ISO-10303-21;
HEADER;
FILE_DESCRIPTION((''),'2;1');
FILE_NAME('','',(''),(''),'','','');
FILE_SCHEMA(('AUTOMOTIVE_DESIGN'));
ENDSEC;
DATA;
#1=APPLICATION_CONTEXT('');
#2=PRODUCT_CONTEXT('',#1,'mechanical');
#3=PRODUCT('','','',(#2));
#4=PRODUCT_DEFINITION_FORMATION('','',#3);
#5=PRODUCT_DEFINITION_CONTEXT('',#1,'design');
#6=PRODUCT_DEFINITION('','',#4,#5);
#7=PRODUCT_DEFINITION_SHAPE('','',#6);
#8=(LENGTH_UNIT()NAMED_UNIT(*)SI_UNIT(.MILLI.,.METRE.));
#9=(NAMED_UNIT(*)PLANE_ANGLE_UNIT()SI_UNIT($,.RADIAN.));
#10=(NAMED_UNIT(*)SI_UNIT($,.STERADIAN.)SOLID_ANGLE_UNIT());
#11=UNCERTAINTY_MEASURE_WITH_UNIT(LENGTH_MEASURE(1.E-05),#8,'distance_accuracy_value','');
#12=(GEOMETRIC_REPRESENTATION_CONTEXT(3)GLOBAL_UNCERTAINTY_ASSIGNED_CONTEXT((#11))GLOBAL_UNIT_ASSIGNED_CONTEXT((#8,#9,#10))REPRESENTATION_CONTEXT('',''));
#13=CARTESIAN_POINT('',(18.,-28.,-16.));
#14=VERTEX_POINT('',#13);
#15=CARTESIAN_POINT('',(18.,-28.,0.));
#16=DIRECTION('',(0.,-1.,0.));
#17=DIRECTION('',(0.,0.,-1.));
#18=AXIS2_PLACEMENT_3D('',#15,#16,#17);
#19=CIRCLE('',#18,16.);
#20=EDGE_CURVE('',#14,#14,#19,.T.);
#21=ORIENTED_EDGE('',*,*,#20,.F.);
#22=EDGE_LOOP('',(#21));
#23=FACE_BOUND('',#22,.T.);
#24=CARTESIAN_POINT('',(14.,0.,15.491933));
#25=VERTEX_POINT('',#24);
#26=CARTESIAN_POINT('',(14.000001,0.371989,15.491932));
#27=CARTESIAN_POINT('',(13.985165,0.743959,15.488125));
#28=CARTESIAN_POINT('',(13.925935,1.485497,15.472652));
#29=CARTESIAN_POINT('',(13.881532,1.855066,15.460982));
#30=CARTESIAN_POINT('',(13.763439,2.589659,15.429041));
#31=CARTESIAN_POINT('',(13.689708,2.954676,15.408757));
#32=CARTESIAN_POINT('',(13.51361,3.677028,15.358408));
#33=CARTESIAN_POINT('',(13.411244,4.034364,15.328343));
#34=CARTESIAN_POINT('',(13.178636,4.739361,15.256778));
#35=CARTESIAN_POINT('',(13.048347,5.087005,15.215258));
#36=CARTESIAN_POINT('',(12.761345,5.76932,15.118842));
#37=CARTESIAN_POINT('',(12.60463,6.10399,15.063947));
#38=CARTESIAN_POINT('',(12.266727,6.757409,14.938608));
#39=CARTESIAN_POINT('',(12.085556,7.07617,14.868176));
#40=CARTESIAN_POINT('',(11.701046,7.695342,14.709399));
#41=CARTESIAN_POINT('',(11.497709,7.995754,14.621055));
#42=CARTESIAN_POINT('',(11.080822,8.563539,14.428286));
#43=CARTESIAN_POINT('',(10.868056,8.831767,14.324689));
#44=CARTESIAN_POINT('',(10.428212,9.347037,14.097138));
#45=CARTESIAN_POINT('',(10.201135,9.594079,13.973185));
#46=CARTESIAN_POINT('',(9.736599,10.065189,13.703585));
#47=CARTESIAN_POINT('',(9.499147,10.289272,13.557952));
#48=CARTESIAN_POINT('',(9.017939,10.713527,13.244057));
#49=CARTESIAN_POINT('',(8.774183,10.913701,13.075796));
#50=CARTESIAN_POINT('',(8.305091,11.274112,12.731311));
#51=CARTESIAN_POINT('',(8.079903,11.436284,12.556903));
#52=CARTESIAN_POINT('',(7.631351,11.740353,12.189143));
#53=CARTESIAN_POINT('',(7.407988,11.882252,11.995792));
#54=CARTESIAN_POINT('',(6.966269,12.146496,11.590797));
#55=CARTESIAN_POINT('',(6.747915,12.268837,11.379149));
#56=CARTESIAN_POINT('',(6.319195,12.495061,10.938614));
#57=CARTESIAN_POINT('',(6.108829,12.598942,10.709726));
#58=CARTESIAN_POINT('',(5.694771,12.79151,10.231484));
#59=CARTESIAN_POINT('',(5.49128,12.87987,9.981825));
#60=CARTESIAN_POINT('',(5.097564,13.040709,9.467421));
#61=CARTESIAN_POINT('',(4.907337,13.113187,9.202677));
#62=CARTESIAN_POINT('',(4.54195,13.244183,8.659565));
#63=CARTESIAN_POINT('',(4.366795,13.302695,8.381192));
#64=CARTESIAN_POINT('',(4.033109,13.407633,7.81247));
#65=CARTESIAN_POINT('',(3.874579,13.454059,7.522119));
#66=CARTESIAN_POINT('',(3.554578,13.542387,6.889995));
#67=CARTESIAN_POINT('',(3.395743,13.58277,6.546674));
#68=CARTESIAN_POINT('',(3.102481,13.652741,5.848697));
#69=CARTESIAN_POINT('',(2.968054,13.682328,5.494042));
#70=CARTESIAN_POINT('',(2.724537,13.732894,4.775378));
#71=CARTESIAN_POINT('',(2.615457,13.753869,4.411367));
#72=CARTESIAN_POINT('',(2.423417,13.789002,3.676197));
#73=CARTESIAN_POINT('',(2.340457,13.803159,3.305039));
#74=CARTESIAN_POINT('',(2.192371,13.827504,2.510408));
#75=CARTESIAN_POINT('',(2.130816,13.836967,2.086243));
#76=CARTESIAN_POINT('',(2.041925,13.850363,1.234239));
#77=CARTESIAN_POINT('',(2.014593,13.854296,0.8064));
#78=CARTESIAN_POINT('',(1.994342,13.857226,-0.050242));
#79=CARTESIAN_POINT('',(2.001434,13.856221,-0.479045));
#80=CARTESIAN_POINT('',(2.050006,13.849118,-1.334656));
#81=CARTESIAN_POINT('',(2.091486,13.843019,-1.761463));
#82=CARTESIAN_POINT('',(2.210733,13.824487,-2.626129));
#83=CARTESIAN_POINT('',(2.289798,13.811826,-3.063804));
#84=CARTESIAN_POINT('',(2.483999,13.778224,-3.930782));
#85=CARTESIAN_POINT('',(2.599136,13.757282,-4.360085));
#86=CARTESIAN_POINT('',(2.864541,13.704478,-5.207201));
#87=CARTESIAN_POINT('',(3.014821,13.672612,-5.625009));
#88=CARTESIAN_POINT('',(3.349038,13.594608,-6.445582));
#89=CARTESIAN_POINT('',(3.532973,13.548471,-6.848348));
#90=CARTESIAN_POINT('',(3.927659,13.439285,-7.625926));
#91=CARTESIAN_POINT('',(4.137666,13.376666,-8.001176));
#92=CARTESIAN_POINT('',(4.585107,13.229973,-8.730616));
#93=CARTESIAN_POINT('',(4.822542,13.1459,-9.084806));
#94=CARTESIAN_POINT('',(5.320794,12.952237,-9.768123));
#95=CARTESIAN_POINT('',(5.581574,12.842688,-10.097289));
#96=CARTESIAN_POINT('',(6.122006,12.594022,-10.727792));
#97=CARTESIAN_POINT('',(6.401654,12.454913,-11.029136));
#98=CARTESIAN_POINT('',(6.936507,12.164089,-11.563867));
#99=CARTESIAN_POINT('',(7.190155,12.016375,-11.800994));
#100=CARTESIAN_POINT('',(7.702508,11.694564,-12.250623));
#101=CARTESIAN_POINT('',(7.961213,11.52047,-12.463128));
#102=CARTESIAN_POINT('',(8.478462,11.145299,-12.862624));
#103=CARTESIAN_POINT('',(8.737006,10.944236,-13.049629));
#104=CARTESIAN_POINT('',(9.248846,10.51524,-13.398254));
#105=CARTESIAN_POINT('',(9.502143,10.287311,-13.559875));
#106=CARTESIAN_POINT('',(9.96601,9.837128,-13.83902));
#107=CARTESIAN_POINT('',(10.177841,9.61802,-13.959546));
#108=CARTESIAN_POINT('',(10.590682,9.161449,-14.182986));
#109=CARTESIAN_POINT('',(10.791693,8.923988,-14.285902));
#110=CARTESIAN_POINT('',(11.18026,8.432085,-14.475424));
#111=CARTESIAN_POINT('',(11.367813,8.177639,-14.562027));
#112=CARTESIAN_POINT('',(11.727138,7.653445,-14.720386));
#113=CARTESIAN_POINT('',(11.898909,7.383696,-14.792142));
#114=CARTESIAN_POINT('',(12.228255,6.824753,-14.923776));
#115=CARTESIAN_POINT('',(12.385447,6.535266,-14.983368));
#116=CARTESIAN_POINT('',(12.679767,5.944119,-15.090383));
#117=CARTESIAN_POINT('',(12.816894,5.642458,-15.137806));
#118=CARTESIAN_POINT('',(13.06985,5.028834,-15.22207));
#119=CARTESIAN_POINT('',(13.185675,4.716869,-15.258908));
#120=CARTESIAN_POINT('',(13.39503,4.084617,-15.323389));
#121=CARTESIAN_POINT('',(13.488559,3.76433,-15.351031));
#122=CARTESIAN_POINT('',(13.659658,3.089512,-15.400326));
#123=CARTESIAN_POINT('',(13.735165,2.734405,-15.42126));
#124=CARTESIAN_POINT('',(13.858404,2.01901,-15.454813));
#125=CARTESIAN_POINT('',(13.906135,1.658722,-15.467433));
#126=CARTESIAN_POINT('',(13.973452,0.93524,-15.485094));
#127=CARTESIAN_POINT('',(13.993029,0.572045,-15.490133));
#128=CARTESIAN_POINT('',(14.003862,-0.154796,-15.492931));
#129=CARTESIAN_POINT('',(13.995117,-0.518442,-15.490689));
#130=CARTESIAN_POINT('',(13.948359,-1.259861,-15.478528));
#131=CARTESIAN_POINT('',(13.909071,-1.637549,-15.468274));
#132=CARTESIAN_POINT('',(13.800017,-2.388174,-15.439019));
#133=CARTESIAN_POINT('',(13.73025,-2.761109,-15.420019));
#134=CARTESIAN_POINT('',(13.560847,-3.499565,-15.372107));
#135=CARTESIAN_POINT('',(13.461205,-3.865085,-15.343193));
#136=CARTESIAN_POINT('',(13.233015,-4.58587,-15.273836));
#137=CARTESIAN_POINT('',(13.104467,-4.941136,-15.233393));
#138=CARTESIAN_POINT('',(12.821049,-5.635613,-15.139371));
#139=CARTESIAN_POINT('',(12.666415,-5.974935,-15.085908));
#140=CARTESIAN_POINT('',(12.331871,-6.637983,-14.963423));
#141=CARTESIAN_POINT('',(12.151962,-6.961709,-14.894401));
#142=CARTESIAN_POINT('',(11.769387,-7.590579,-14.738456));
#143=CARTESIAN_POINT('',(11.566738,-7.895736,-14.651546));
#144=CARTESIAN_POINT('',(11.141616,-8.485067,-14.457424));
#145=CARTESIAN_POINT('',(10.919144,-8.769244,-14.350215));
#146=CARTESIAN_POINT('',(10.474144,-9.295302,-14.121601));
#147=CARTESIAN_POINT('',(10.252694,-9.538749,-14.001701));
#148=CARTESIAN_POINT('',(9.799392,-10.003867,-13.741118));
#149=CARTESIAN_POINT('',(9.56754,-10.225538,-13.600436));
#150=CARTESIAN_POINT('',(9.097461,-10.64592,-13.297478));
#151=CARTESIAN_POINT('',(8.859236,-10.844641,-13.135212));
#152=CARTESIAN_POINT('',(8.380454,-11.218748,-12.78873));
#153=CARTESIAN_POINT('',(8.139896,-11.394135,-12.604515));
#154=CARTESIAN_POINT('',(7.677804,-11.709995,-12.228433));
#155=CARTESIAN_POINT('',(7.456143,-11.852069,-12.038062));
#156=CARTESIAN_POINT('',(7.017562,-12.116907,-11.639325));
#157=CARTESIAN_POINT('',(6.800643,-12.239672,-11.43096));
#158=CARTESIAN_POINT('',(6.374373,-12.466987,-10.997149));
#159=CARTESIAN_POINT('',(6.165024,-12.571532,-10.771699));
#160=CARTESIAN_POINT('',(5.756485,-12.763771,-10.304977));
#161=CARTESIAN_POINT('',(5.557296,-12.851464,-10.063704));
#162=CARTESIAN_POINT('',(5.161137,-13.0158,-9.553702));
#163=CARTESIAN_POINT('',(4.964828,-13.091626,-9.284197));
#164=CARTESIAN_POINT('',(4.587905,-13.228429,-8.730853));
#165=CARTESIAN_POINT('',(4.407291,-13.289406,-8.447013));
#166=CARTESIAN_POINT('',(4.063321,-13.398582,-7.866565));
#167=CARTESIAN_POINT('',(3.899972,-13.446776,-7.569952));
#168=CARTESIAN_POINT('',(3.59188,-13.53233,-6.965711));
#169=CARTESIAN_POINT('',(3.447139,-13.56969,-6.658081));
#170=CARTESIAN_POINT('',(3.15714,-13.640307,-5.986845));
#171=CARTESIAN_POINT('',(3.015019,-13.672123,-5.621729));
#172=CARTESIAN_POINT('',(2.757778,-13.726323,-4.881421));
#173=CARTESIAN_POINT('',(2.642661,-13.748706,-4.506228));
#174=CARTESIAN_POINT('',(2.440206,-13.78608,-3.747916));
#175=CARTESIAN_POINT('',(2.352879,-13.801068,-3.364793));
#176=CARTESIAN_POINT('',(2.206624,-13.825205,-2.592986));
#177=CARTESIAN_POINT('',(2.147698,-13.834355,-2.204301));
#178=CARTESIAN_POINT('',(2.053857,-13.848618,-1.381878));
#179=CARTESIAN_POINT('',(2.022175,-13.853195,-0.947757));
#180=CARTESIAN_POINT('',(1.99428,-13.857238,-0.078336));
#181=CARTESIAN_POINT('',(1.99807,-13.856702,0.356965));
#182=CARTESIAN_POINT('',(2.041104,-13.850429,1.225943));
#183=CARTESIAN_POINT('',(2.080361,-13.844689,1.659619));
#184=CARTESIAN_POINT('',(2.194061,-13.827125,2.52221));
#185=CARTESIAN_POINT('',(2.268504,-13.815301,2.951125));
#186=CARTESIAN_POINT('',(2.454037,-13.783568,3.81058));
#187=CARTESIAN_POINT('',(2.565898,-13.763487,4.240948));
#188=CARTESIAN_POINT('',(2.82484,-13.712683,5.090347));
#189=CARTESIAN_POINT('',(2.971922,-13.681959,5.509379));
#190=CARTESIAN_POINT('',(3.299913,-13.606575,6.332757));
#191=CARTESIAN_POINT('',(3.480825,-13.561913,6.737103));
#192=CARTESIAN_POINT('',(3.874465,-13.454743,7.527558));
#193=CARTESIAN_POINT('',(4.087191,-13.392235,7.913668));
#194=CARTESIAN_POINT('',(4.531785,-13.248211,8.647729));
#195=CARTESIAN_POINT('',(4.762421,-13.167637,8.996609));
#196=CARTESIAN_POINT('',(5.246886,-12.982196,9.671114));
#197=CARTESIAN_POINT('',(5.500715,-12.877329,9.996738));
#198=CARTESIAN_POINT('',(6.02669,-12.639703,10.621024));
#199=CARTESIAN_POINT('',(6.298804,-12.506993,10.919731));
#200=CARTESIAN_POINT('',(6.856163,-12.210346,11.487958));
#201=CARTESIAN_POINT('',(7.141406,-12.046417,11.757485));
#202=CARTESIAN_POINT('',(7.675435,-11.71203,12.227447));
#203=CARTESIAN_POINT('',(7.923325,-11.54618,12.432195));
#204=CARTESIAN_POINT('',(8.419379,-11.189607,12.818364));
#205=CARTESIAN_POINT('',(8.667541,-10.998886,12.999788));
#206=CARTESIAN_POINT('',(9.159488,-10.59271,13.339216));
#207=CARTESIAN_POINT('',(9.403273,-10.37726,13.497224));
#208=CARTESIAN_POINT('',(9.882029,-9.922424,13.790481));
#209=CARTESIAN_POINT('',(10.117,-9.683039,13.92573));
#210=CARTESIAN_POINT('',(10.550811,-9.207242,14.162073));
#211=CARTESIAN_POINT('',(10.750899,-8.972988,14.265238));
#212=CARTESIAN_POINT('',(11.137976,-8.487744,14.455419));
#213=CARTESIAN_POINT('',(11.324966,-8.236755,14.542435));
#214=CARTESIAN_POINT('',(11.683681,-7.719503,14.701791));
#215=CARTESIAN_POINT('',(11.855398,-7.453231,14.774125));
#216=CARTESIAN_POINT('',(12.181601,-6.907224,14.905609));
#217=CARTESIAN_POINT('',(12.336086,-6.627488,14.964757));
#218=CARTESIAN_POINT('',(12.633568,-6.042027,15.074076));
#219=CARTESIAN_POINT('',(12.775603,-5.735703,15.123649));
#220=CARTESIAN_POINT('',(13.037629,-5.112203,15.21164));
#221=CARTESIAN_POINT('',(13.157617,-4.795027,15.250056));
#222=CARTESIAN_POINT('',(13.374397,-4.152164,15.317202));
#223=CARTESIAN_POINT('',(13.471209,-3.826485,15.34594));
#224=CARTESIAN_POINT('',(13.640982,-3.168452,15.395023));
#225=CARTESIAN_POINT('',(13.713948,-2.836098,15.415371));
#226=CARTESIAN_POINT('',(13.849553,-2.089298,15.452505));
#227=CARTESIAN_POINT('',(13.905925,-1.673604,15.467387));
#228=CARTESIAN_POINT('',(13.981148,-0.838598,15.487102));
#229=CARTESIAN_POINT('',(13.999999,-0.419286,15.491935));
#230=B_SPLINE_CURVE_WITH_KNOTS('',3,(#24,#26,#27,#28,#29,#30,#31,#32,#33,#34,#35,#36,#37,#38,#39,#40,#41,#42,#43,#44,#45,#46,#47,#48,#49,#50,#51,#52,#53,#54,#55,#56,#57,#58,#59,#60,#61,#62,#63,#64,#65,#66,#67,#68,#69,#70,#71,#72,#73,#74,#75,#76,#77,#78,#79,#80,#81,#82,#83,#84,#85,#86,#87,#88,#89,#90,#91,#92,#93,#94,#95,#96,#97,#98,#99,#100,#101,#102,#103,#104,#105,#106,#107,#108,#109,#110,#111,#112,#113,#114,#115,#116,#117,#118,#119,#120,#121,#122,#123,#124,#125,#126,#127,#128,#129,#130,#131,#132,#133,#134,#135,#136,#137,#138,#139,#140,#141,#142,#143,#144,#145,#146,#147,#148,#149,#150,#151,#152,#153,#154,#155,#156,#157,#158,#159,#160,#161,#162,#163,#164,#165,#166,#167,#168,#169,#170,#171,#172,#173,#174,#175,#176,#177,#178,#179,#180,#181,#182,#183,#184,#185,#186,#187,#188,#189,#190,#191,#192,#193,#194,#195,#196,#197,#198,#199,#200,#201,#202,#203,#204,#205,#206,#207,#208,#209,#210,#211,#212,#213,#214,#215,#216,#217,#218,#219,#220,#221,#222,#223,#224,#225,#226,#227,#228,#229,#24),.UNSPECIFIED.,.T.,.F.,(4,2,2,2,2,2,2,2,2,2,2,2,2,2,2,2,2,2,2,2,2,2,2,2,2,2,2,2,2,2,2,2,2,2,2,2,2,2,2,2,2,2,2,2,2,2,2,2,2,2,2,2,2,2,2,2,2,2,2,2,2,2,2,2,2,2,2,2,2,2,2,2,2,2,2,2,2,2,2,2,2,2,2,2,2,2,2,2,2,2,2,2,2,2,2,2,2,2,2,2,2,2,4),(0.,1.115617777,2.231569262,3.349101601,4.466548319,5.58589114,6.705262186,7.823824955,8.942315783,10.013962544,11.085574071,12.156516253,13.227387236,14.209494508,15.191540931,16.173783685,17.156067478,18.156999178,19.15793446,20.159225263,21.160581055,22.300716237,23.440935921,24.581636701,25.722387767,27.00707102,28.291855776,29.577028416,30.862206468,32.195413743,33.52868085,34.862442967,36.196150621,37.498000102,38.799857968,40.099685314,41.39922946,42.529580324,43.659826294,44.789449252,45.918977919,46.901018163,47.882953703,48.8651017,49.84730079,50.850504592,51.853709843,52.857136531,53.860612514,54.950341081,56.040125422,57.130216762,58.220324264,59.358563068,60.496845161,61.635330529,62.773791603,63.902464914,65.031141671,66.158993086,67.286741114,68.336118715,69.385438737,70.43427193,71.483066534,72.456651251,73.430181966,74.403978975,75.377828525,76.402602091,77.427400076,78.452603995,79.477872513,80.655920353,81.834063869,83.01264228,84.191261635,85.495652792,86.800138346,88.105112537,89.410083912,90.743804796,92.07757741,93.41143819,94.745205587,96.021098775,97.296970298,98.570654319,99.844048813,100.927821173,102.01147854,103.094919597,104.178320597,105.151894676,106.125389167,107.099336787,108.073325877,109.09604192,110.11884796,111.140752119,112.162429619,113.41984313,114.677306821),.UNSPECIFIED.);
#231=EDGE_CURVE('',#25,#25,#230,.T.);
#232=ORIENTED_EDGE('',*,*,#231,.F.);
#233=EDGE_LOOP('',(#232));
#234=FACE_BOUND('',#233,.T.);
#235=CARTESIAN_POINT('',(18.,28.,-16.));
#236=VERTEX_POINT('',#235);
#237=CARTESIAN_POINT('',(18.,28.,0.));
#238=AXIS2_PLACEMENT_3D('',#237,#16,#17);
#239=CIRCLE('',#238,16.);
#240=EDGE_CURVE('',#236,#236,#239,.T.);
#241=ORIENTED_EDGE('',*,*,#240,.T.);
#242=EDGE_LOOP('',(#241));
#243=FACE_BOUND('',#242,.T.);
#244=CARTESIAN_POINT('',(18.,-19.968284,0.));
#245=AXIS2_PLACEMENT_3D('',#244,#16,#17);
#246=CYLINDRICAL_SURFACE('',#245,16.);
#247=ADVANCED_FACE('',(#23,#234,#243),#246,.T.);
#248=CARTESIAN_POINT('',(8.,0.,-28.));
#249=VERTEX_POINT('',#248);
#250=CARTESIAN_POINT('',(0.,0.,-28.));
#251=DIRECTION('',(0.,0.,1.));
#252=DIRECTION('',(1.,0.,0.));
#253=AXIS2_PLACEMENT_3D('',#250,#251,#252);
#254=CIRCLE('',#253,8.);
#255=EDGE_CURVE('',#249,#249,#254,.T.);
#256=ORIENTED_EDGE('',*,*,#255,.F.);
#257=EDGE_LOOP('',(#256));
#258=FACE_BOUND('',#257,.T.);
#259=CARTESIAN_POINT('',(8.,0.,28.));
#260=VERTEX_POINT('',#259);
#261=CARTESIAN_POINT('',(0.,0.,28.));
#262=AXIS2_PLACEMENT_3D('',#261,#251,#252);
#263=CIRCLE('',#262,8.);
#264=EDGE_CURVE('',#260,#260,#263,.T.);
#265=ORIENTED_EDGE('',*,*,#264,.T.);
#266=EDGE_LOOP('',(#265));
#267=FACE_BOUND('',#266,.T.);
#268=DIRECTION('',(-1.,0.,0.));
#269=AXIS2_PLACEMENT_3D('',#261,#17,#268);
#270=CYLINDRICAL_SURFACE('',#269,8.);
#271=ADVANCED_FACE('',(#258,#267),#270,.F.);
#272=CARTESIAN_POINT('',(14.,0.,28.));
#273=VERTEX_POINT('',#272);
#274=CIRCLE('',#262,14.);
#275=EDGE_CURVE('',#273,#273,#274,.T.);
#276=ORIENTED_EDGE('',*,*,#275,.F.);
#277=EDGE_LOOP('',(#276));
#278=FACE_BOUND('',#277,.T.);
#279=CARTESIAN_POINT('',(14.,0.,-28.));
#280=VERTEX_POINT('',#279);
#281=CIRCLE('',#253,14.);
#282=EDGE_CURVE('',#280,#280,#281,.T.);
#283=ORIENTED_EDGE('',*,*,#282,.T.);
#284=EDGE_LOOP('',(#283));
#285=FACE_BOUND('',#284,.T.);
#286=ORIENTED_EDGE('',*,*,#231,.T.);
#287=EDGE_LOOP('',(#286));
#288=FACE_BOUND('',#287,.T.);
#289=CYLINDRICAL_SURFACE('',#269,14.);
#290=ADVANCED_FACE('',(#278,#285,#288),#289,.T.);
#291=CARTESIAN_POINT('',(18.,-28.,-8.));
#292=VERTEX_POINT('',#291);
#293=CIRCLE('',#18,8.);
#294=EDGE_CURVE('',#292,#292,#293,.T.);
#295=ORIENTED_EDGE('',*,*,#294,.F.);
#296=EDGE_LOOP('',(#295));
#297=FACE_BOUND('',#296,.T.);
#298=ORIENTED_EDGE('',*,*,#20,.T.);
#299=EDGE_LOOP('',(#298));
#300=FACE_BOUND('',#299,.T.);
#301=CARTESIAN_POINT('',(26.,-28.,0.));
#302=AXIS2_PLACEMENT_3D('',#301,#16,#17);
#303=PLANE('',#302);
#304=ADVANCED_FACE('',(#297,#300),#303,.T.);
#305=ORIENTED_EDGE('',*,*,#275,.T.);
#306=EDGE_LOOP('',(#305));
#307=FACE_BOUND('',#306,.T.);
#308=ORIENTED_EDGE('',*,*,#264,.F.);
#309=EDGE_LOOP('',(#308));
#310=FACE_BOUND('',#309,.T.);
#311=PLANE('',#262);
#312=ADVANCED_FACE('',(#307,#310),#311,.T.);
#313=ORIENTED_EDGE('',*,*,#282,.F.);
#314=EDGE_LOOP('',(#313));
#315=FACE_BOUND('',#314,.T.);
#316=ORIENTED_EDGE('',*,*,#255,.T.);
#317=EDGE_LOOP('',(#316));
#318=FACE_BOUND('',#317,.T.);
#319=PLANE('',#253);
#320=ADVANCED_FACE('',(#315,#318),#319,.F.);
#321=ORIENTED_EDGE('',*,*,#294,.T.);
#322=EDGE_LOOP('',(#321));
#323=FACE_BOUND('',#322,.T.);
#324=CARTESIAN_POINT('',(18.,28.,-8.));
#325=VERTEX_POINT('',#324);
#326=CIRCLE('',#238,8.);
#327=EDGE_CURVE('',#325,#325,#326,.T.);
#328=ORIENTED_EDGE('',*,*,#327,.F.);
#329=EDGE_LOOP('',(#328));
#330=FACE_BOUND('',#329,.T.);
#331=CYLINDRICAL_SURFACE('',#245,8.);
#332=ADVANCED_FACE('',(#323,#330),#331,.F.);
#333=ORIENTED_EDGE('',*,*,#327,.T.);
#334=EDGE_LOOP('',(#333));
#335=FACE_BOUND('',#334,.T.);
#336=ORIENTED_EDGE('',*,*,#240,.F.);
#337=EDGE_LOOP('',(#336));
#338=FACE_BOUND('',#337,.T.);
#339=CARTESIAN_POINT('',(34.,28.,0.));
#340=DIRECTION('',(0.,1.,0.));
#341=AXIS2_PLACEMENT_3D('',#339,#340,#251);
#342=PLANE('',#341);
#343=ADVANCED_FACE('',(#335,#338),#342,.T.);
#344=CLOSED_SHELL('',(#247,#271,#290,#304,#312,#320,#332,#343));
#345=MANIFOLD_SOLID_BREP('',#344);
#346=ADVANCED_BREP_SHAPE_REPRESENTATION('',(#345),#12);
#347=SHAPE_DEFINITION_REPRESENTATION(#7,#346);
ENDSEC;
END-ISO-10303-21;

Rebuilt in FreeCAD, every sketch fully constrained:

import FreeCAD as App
import Part
import Sketcher

doc = App.newDocument("Part")
body = doc.addObject("PartDesign::Body", "Body")

# Sketch on XY plane
sketch1 = body.newObject("Sketcher::SketchObject", "Sketch")
sketch1.AttachmentSupport = (doc.getObject("XY_Plane"), [""])
sketch1.MapMode = "FlatFace"
sketch1.addGeometry(Part.Circle(App.Vector(0, 0, 0), App.Vector(0, 0, 1), 14), False)
sketch1.addGeometry(Part.Circle(App.Vector(0, 0, 0), App.Vector(0, 0, 1), 8), False)
sketch1.addConstraint(Sketcher.Constraint("Coincident", 0, 3, -1, 1))
sketch1.addConstraint(Sketcher.Constraint("Coincident", 1, 3, -1, 1))
sketch1.addConstraint(Sketcher.Constraint("Diameter", 0, 28.0))
sketch1.addConstraint(Sketcher.Constraint("Diameter", 1, 16.0))
pad1 = body.newObject("PartDesign::Pad", "Pad")
pad1.Profile = sketch1
pad1.Length = 56
pad1.Midplane = True

# Sketch on XY plane
sketch2 = body.newObject("Sketcher::SketchObject", "Sketch001")
sketch2.AttachmentSupport = (doc.getObject("XY_Plane"), [""])
sketch2.MapMode = "FlatFace"
sketch2.addGeometry(Part.LineSegment(App.Vector(26, 28, 0), App.Vector(26, -28, 0)), False)
sketch2.addGeometry(Part.LineSegment(App.Vector(26, -28, 0), App.Vector(34, -28, 0)), False)
sketch2.addGeometry(Part.LineSegment(App.Vector(34, -28, 0), App.Vector(34, 28, 0)), False)
sketch2.addGeometry(Part.LineSegment(App.Vector(34, 28, 0), App.Vector(26, 28, 0)), False)
sketch2.addGeometry(Part.LineSegment(App.Vector(18, -28, 0), App.Vector(18, 28, 0)), True)  # axis
sketch2.addConstraint(Sketcher.Constraint("Coincident", 0, 2, 1, 1))
sketch2.addConstraint(Sketcher.Constraint("Coincident", 1, 2, 2, 1))
sketch2.addConstraint(Sketcher.Constraint("Coincident", 2, 2, 3, 1))
sketch2.addConstraint(Sketcher.Constraint("Coincident", 3, 2, 0, 1))
sketch2.addConstraint(Sketcher.Constraint("Vertical", 0))
sketch2.addConstraint(Sketcher.Constraint("Horizontal", 1))
sketch2.addConstraint(Sketcher.Constraint("Vertical", 2))
sketch2.addConstraint(Sketcher.Constraint("Horizontal", 3))
sketch2.addConstraint(Sketcher.Constraint("Vertical", 4))
sketch2.addConstraint(Sketcher.Constraint("Horizontal", 1, 2, 4, 1))
sketch2.addConstraint(Sketcher.Constraint("Horizontal", 3, 2, 4, 2))
sketch2.addConstraint(Sketcher.Constraint("DistanceX", 1, 1, 1, 2, 8.0))
sketch2.addConstraint(Sketcher.Constraint("DistanceY", 0, 2, 0, 1, 56.0))
sketch2.addConstraint(Sketcher.Constraint("DistanceX", -1, 1, 0, 2, 26.0))
sketch2.addConstraint(Sketcher.Constraint("DistanceY", 0, 2, -1, 1, 28.0))
sketch2.addConstraint(Sketcher.Constraint("DistanceX", -1, 1, 4, 1, 18.0))
revolution = body.newObject("PartDesign::Revolution", "Revolution")
revolution.Profile = sketch2
revolution.ReferenceAxis = (sketch2, ["Axis0"])
revolution.Angle = 360

# Sketch on XY plane
sketch3 = body.newObject("Sketcher::SketchObject", "Sketch002")
sketch3.AttachmentSupport = (doc.getObject("XY_Plane"), [""])
sketch3.MapMode = "FlatFace"
sketch3.AttachmentOffset = App.Placement(App.Vector(0, 0, -28), App.Rotation())
sketch3.addGeometry(Part.Circle(App.Vector(0, 0, 0), App.Vector(0, 0, 1), 8), False)
sketch3.addConstraint(Sketcher.Constraint("Coincident", 0, 3, -1, 1))
sketch3.addConstraint(Sketcher.Constraint("Diameter", 0, 16.0))
pocket1 = body.newObject("PartDesign::Pocket", "Pocket")
pocket1.Profile = sketch3
pocket1.Length = 56
pocket1.Reversed = True

# Sketch on XZ plane
sketch4 = body.newObject("Sketcher::SketchObject", "Sketch003")
sketch4.AttachmentSupport = (doc.getObject("XZ_Plane"), [""])
sketch4.MapMode = "FlatFace"
sketch4.AttachmentOffset = App.Placement(App.Vector(0, 0, 28), App.Rotation())
sketch4.addGeometry(Part.Circle(App.Vector(18, 0, 0), App.Vector(0, 0, 1), 8), False)
sketch4.addConstraint(Sketcher.Constraint("PointOnObject", 0, 3, -1))
sketch4.addConstraint(Sketcher.Constraint("Diameter", 0, 16.0))
sketch4.addConstraint(Sketcher.Constraint("DistanceX", -1, 1, 0, 3, 18.0))
pocket2 = body.newObject("PartDesign::Pocket", "Pocket001")
pocket2.Profile = sketch4
pocket2.Length = 56

doc.recompute()
